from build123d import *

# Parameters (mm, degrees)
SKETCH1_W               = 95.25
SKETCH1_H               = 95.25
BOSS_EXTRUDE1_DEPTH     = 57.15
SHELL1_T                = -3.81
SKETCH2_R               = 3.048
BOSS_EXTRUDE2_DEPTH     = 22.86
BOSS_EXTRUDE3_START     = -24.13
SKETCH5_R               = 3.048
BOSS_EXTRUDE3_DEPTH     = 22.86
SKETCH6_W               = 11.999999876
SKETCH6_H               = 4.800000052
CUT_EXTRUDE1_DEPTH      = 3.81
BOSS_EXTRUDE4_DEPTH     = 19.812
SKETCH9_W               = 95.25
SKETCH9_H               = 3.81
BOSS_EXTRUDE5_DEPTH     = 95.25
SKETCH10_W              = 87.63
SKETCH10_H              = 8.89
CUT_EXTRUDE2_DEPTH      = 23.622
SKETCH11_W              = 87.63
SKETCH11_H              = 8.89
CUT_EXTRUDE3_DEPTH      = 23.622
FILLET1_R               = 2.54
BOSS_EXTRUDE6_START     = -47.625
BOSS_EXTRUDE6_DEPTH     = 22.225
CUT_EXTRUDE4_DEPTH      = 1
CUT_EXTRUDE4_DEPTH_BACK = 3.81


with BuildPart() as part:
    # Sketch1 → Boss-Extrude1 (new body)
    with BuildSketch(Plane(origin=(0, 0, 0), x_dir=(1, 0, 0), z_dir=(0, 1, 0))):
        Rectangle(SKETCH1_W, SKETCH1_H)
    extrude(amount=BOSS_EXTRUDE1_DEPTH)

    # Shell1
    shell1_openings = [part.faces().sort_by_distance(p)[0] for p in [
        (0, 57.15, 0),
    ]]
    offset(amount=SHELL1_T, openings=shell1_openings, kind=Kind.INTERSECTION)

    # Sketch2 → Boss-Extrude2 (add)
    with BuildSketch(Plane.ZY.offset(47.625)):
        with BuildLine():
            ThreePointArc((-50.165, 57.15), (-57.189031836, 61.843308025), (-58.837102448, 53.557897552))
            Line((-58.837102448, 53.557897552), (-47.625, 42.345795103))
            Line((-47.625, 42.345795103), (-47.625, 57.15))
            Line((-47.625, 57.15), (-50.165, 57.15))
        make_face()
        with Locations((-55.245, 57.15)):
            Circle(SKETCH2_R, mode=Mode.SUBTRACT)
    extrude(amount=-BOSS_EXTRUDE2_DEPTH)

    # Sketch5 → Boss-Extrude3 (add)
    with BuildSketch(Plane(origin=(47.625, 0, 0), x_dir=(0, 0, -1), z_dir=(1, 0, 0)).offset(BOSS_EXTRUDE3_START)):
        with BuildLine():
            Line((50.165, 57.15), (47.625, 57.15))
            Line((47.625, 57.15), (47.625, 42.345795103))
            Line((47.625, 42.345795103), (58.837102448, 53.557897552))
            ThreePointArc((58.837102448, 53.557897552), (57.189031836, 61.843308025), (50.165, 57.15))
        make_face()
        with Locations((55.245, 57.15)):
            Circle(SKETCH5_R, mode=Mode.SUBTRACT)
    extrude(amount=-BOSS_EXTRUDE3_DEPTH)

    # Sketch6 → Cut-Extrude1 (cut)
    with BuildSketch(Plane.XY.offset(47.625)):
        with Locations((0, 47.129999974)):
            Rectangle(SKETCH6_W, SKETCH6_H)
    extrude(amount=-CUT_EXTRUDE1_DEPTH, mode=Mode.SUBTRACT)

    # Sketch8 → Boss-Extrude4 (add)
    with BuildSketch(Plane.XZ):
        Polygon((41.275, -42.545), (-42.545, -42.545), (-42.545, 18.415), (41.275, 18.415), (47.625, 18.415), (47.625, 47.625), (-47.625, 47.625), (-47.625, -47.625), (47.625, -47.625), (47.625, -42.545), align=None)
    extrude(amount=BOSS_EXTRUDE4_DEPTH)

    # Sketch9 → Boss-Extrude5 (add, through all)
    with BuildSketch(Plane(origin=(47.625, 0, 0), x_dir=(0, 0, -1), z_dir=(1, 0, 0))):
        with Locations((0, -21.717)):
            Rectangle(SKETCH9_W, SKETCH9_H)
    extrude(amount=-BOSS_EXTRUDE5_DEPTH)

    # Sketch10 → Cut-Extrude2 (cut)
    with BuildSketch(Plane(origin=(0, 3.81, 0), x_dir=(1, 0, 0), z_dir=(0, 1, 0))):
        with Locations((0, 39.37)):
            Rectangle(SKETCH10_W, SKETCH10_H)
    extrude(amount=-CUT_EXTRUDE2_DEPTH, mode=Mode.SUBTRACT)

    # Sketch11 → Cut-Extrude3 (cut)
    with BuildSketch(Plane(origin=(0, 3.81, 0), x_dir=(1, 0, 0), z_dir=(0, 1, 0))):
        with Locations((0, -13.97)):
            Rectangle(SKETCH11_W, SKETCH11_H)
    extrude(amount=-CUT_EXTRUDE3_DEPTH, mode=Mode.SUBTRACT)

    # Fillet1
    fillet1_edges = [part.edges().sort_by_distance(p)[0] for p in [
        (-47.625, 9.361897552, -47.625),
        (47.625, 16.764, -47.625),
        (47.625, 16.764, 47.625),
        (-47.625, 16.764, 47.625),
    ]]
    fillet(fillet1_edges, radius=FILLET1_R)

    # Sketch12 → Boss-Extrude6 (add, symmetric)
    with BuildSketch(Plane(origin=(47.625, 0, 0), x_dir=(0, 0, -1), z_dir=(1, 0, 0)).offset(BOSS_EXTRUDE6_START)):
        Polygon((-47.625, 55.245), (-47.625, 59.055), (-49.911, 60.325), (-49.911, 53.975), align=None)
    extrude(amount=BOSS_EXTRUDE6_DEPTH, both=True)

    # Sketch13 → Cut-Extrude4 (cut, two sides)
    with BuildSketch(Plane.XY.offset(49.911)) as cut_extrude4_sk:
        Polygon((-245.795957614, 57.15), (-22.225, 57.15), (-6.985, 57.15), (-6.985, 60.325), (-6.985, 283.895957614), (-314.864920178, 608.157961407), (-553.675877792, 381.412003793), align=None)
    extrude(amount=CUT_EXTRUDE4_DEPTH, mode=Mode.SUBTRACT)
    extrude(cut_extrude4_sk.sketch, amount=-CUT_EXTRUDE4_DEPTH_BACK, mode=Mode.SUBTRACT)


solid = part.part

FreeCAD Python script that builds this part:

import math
import FreeCAD as App
import Part
import Sketcher
from FreeCAD import Vector
Q = App.Units.Quantity


def edges_at(feature, points):
    """Names of the edges that pass closest to the given points."""
    edges = feature.Shape.Edges
    near = lambda p: min(range(len(edges)), key=lambda i: edges[i].distToShape(Part.Vertex(*p))[0])
    return sorted({f"Edge{near(p) + 1}" for p in points})


def faces_at(feature, points):
    """Names of the faces that lie closest to the given points."""
    faces = feature.Shape.Faces
    near = lambda p: min(range(len(faces)), key=lambda i: faces[i].distToShape(Part.Vertex(*p))[0])
    return sorted({f"Face{near(p) + 1}" for p in points})

doc = App.newDocument("Part")
params = doc.addObject("Spreadsheet::Sheet", "Params")
for row, (alias, value) in enumerate([
    ("sketch1_width", "3.75 in"),
    ("pad1_length", "2.25 in"),
    ("thickness_wall", "0.15 in"),
    ("sketch2_radius", "0.2 in"),
    ("sketch2_diameter", "0.24 in"),
    ("sketch2_height", "0.1 in"),
    ("pad2_length", "0.9 in"),
    ("sketch3_radius", "0.2 in"),
    ("sketch3_diameter", "0.24 in"),
    ("sketch3_height", "0.1 in"),
    ("pad3_length", "0.9 in"),
    ("pocket1_length", "0.15 in"),
    ("sketch5_height", "2.4 in"),
    ("sketch5_height2", "0.2 in"),
    ("sketch5_width", "3.55 in"),
    ("sketch5_width2", "3.75 in"),
    ("pad4_length", "0.78 in"),
    ("sketch6_width", "0.15 in"),
    ("sketch6_height", "3.75 in"),
    ("pad5_length", "3.75 in"),
    ("sketch7_width", "3.45 in"),
    ("sketch7_height", "0.35 in"),
    ("pocket2_length", "0.93 in"),
    ("sketch8_width", "3.45 in"),
    ("sketch8_height", "0.35 in"),
    ("pocket3_length", "0.93 in"),
    ("fillet_radius", "0.1 in"),
    ("sketch9_width", "0.15 in"),
    ("sketch9_width2", "0.25 in"),
    ("pad6_length", "1.75 in"),
    ("pocket4_length", "1 mm"),
    ("pocket4_length2", "0.15 in"),
], start=1):
    params.set(f"A{row}", alias)
    params.set(f"B{row}", "=" + value)
    params.setAlias(f"B{row}", alias)

body = doc.addObject("PartDesign::Body", "Body")

sketch1 = doc.addObject("Sketcher::SketchObject", "Sketch")
body.addObject(sketch1)
sketch1.AttachmentSupport = (doc.XZ_Plane, [""])
sketch1.MapMode = "FlatFace"
sketch1.addGeometry(Part.LineSegment(Vector(-48, -48, 0), Vector(-48, 48, 0)), False)
sketch1.addGeometry(Part.LineSegment(Vector(-48, 48, 0), Vector(48, 48, 0)), False)
sketch1.addGeometry(Part.LineSegment(Vector(48, 48, 0), Vector(48, -48, 0)), False)
sketch1.addGeometry(Part.LineSegment(Vector(48, -48, 0), Vector(-48, -48, 0)), False)
sketch1.addConstraint(Sketcher.Constraint("Coincident", 0, 2, 1, 1))
sketch1.addConstraint(Sketcher.Constraint("Coincident", 1, 2, 2, 1))
sketch1.addConstraint(Sketcher.Constraint("Coincident", 2, 2, 3, 1))
sketch1.addConstraint(Sketcher.Constraint("Coincident", 3, 2, 0, 1))
sketch1.addConstraint(Sketcher.Constraint("Vertical", 0))
sketch1.addConstraint(Sketcher.Constraint("Horizontal", 1))
sketch1.addConstraint(Sketcher.Constraint("Vertical", 2))
sketch1.addConstraint(Sketcher.Constraint("Horizontal", 3))
sketch1.addConstraint(Sketcher.Constraint("Symmetric", 0, 2, 2, 2, -1, 1))
sketch1.addConstraint(Sketcher.Constraint("Equal", 3, 0))
sketch1.addConstraint(Sketcher.Constraint("DistanceX", 1, 1, 1, 2, Q("3.75 in")))
sketch1.setExpression("Constraints[10]", "Params.sketch1_width")
pad1 = doc.addObject("PartDesign::Pad", "Pad")
body.addObject(pad1)
pad1.Profile = sketch1
pad1.setExpression("Length", "Params.pad1_length")
pad1.Reversed = True
doc.recompute()

thickness = doc.addObject("PartDesign::Thickness", "Thickness")
body.addObject(thickness)
thickness.Base = (pad1, faces_at(pad1, [(0, 57.15, 0)]))
thickness.setExpression("Value", "Params.thickness_wall")
thickness.Reversed = True
thickness.Join = "Intersection"

sketch2 = doc.addObject("Sketcher::SketchObject", "Sketch001")
body.addObject(sketch2)
sketch2.AttachmentSupport = (doc.YZ_Plane, [""])
sketch2.MapMode = "FlatFace"
sketch2.AttachmentOffset = App.Placement(Vector(0, 0, -1.875 * 25.4), App.Rotation())
sketch2.addGeometry(Part.ArcOfCircle(Part.Circle(Vector(57.1, -55.2, 0), Vector(0, 0, 1), 5.1), math.radians(-135), math.radians(90)), False)
sketch2.addGeometry(Part.LineSegment(Vector(53.6, -58.8, 0), Vector(42.3, -47.6, 0)), False)
sketch2.addGeometry(Part.LineSegment(Vector(42.3, -47.6, 0), Vector(57.1, -47.6, 0)), False)
sketch2.addGeometry(Part.LineSegment(Vector(57.1, -47.6, 0), Vector(57.1, -50.2, 0)), False)
sketch2.addGeometry(Part.Circle(Vector(57.1, -55.2, 0), Vector(0, 0, 1), 3), False)
sketch2.addConstraint(Sketcher.Constraint("Tangent", 0, 1, 1, 1))
sketch2.addConstraint(Sketcher.Constraint("Coincident", 1, 2, 2, 1))
sketch2.addConstraint(Sketcher.Constraint("Coincident", 2, 2, 3, 1))
sketch2.addConstraint(Sketcher.Constraint("Coincident", 3, 2, 0, 2))
sketch2.addConstraint(Sketcher.Constraint("Horizontal", 2))
sketch2.addConstraint(Sketcher.Constraint("Vertical", 3))
sketch2.addConstraint(Sketcher.Constraint("Coincident", 4, 3, 0, 3))
sketch2.addConstraint(Sketcher.Constraint("Vertical", 4, 3, 2, 2))
sketch2.addConstraint(Sketcher.Constraint("Radius", 0, Q("0.2 in")))
sketch2.addConstraint(Sketcher.Constraint("Diameter", 4, Q("0.24 in")))
sketch2.addConstraint(Sketcher.Constraint("DistanceY", 3, 2, 3, 1, Q("0.1 in")))
sketch2.addConstraint(Sketcher.Constraint("Angle", 1, Q("135 deg")))
sketch2.addConstraint(Sketcher.Constraint("DistanceX", -1, 1, 0, 3, Q("2.25 in")))
sketch2.addConstraint(Sketcher.Constraint("DistanceY", 0, 3, -1, 1, Q("2.175 in")))
sketch2.setExpression("Constraints[8]", "Params.sketch2_radius")
sketch2.setExpression("Constraints[9]", "Params.sketch2_diameter")
sketch2.setExpression("Constraints[10]", "Params.sketch2_height")
pad2 = doc.addObject("PartDesign::Pad", "Pad001")
body.addObject(pad2)
pad2.Profile = sketch2
pad2.setExpression("Length", "Params.pad2_length")

sketch3 = doc.addObject("Sketcher::SketchObject", "Sketch002")
body.addObject(sketch3)
sketch3.AttachmentSupport = (doc.YZ_Plane, [""])
sketch3.MapMode = "FlatFace"
sketch3.AttachmentOffset = App.Placement(Vector(0, 0, 0.925 * 25.4), App.Rotation())
sketch3.addGeometry(Part.LineSegment(Vector(57.1, -50.2, 0), Vector(57.1, -47.6, 0)), False)
sketch3.addGeometry(Part.LineSegment(Vector(57.1, -47.6, 0), Vector(42.3, -47.6, 0)), False)
sketch3.addGeometry(Part.LineSegment(Vector(42.3, -47.6, 0), Vector(53.6, -58.8, 0)), False)
sketch3.addGeometry(Part.ArcOfCircle(Part.Circle(Vector(57.1, -55.2, 0), Vector(0, 0, 1), 5.1), math.radians(-135), math.radians(90)), False)
sketch3.addGeometry(Part.Circle(Vector(57.1, -55.2, 0), Vector(0, 0, 1), 3), False)
sketch3.addConstraint(Sketcher.Constraint("Coincident", 0, 2, 1, 1))
sketch3.addConstraint(Sketcher.Constraint("Coincident", 1, 2, 2, 1))
sketch3.addConstraint(Sketcher.Constraint("Tangent", 2, 2, 3, 1))
sketch3.addConstraint(Sketcher.Constraint("Coincident", 3, 2, 0, 1))
sketch3.addConstraint(Sketcher.Constraint("Vertical", 0))
sketch3.addConstraint(Sketcher.Constraint("Horizontal", 1))
sketch3.addConstraint(Sketcher.Constraint("Coincident", 4, 3, 3, 3))
sketch3.addConstraint(Sketcher.Constraint("Vertical", 4, 3, 0, 2))
sketch3.addConstraint(Sketcher.Constraint("Radius", 3, Q("0.2 in")))
sketch3.addConstraint(Sketcher.Constraint("Diameter", 4, Q("0.24 in")))
sketch3.addConstraint(Sketcher.Constraint("DistanceY", 0, 1, 0, 2, Q("0.1 in")))
sketch3.addConstraint(Sketcher.Constraint("Angle", 2, Q("-45 deg")))
sketch3.addConstraint(Sketcher.Constraint("DistanceX", -1, 1, 3, 3, Q("2.25 in")))
sketch3.addConstraint(Sketcher.Constraint("DistanceY", 3, 3, -1, 1, Q("2.175 in")))
sketch3.setExpression("Constraints[8]", "Params.sketch3_radius")
sketch3.setExpression("Constraints[9]", "Params.sketch3_diameter")
sketch3.setExpression("Constraints[10]", "Params.sketch3_height")
pad3 = doc.addObject("PartDesign::Pad", "Pad002")
body.addObject(pad3)
pad3.Profile = sketch3
pad3.setExpression("Length", "Params.pad3_length")
pad3.Reversed = True

sketch4 = doc.addObject("Sketcher::SketchObject", "Sketch003")
body.addObject(sketch4)
sketch4.AttachmentSupport = (doc.XY_Plane, [""])
sketch4.MapMode = "FlatFace"
sketch4.AttachmentOffset = App.Placement(Vector(0, 0, 1.875 * 25.4), App.Rotation())
sketch4.addGeometry(Part.LineSegment(Vector(-6, 49.5, 0), Vector(-6, 44.7, 0)), False)
sketch4.addGeometry(Part.LineSegment(Vector(-6, 44.7, 0), Vector(6, 44.7, 0)), False)
sketch4.addGeometry(Part.LineSegment(Vector(6, 44.7, 0), Vector(6, 49.5, 0)), False)
sketch4.addGeometry(Part.LineSegment(Vector(6, 49.5, 0), Vector(-6, 49.5, 0)), False)
sketch4.addConstraint(Sketcher.Constraint("Coincident", 0, 2, 1, 1))
sketch4.addConstraint(Sketcher.Constraint("Coincident", 1, 2, 2, 1))
sketch4.addConstraint(Sketcher.Constraint("Coincident", 2, 2, 3, 1))
sketch4.addConstraint(Sketcher.Constraint("Coincident", 3, 2, 0, 1))
sketch4.addConstraint(Sketcher.Constraint("Vertical", 0))
sketch4.addConstraint(Sketcher.Constraint("Horizontal", 1))
sketch4.addConstraint(Sketcher.Constraint("Vertical", 2))
sketch4.addConstraint(Sketcher.Constraint("Horizontal", 3))
sketch4.addConstraint(Sketcher.Constraint("DistanceY", -1, 1, 2, 2, Q("1.95 in")))
sketch4.addConstraint(Sketcher.Constraint("DistanceX", 1, 1, 1, 2, Q("12 mm")))
sketch4.addConstraint(Sketcher.Constraint("DistanceY", 0, 2, 0, 1, Q("4.8 mm")))
sketch4.addConstraint(Sketcher.Constraint("DistanceX", 0, 2, -1, 1, Q("6 mm")))
pocket1 = doc.addObject("PartDesign::Pocket", "Pocket")
body.addObject(pocket1)
pocket1.Profile = sketch4
pocket1.setExpression("Length", "Params.pocket1_length")

sketch5 = doc.addObject("Sketcher::SketchObject", "Sketch004")
body.addObject(sketch5)
sketch5.AttachmentSupport = (doc.XZ_Plane, [""])
sketch5.MapMode = "FlatFace"
sketch5.addGeometry(Part.LineSegment(Vector(-43, -43, 0), Vector(-43, 18, 0)), False)
sketch5.addGeometry(Part.LineSegment(Vector(-43, 18, 0), Vector(48, 18, 0)), False)
sketch5.addGeometry(Part.LineSegment(Vector(48, 18, 0), Vector(48, 48, 0)), False)
sketch5.addGeometry(Part.LineSegment(Vector(48, 48, 0), Vector(-48, 48, 0)), False)
sketch5.addGeometry(Part.LineSegment(Vector(-48, 48, 0), Vector(-48, -48, 0)), False)
sketch5.addGeometry(Part.LineSegment(Vector(-48, -48, 0), Vector(48, -48, 0)), False)
sketch5.addGeometry(Part.LineSegment(Vector(48, -48, 0), Vector(48, -43, 0)), False)
sketch5.addGeometry(Part.LineSegment(Vector(48, -43, 0), Vector(-43, -43, 0)), False)
sketch5.addConstraint(Sketcher.Constraint("Coincident", 0, 2, 1, 1))
sketch5.addConstraint(Sketcher.Constraint("Coincident", 1, 2, 2, 1))
sketch5.addConstraint(Sketcher.Constraint("Coincident", 2, 2, 3, 1))
sketch5.addConstraint(Sketcher.Constraint("Coincident", 3, 2, 4, 1))
sketch5.addConstraint(Sketcher.Constraint("Coincident", 4, 2, 5, 1))
sketch5.addConstraint(Sketcher.Constraint("Coincident", 5, 2, 6, 1))
sketch5.addConstraint(Sketcher.Constraint("Coincident", 6, 2, 7, 1))
sketch5.addConstraint(Sketcher.Constraint("Coincident", 7, 2, 0, 1))
sketch5.addConstraint(Sketcher.Constraint("Vertical", 0))
sketch5.addConstraint(Sketcher.Constraint("Horizontal", 1))
sketch5.addConstraint(Sketcher.Constraint("Vertical", 2))
sketch5.addConstraint(Sketcher.Constraint("Horizontal", 3))
sketch5.addConstraint(Sketcher.Constraint("Vertical", 4))
sketch5.addConstraint(Sketcher.Constraint("Horizontal", 5))
sketch5.addConstraint(Sketcher.Constraint("Vertical", 6))
sketch5.addConstraint(Sketcher.Constraint("Horizontal", 7))
sketch5.addConstraint(Sketcher.Constraint("Symmetric", 2, 2, 4, 2, -1, 1))
sketch5.addConstraint(Sketcher.Constraint("Vertical", 2, 2, 5, 2))
sketch5.addConstraint(Sketcher.Constraint("Equal", 5, 4))
sketch5.addConstraint(Sketcher.Constraint("DistanceY", 0, 1, 0, 2, Q("2.4 in")))
sketch5.addConstraint(Sketcher.Constraint("DistanceY", 6, 1, 6, 2, Q("0.2 in")))
sketch5.addConstraint(Sketcher.Constraint("DistanceX", 1, 1, 1, 2, Q("3.55 in")))
sketch5.addConstraint(Sketcher.Constraint("DistanceX", 3, 2, 3, 1, Q("3.75 in")))
sketch5.setExpression("Constraints[19]", "Params.sketch5_height")
sketch5.setExpression("Constraints[20]", "Params.sketch5_height2")
sketch5.setExpression("Constraints[21]", "Params.sketch5_width")
sketch5.setExpression("Constraints[22]", "Params.sketch5_width2")
pad4 = doc.addObject("PartDesign::Pad", "Pad003")
body.addObject(pad4)
pad4.Profile = sketch5
pad4.setExpression("Length", "Params.pad4_length")

sketch6 = doc.addObject("Sketcher::SketchObject", "Sketch005")
body.addObject(sketch6)
sketch6.AttachmentSupport = (doc.YZ_Plane, [""])
sketch6.MapMode = "FlatFace"
sketch6.AttachmentOffset = App.Placement(Vector(0, 0, 1.875 * 25.4), App.Rotation())
sketch6.addGeometry(Part.LineSegment(Vector(-19.8, 47.6, 0), Vector(-23.6, 47.6, 0)), False)
sketch6.addGeometry(Part.LineSegment(Vector(-23.6, 47.6, 0), Vector(-23.6, -47.6, 0)), False)
sketch6.addGeometry(Part.LineSegment(Vector(-23.6, -47.6, 0), Vector(-19.8, -47.6, 0)), False)
sketch6.addGeometry(Part.LineSegment(Vector(-19.8, -47.6, 0), Vector(-19.8, 47.6, 0)), False)
sketch6.addConstraint(Sketcher.Constraint("Coincident", 0, 2, 1, 1))
sketch6.addConstraint(Sketcher.Constraint("Coincident", 1, 2, 2, 1))
sketch6.addConstraint(Sketcher.Constraint("Coincident", 2, 2, 3, 1))
sketch6.addConstraint(Sketcher.Constraint("Coincident", 3, 2, 0, 1))
sketch6.addConstraint(Sketcher.Constraint("Horizontal", 0))
sketch6.addConstraint(Sketcher.Constraint("Vertical", 1))
sketch6.addConstraint(Sketcher.Constraint("Horizontal", 2))
sketch6.addConstraint(Sketcher.Constraint("Vertical", 3))
sketch6.addConstraint(Sketcher.Constraint("DistanceX", 0, 2, 0, 1, Q("0.15 in")))
sketch6.addConstraint(Sketcher.Constraint("DistanceY", 1, 2, 1, 1, Q("3.75 in")))
sketch6.addConstraint(Sketcher.Constraint("DistanceX", 0, 2, -1, 1, Q("0.93 in")))
sketch6.addConstraint(Sketcher.Constraint("DistanceY", -1, 1, 0, 2, Q("1.875 in")))
sketch6.setExpression("Constraints[8]", "Params.sketch6_width")
sketch6.setExpression("Constraints[9]", "Params.sketch6_height")
pad5 = doc.addObject("PartDesign::Pad", "Pad004")
body.addObject(pad5)
pad5.Profile = sketch6
pad5.setExpression("Length", "Params.pad5_length")
pad5.Reversed = True

sketch7 = doc.addObject("Sketcher::SketchObject", "Sketch006")
body.addObject(sketch7)
sketch7.AttachmentSupport = (doc.XZ_Plane, [""])
sketch7.MapMode = "FlatFace"
sketch7.AttachmentOffset = App.Placement(Vector(0, 0, -0.15 * 25.4), App.Rotation())
sketch7.addGeometry(Part.LineSegment(Vector(-44, -44, 0), Vector(-44, -35, 0)), False)
sketch7.addGeometry(Part.LineSegment(Vector(-44, -35, 0), Vector(44, -35, 0)), False)
sketch7.addGeometry(Part.LineSegment(Vector(44, -35, 0), Vector(44, -44, 0)), False)
sketch7.addGeometry(Part.LineSegment(Vector(44, -44, 0), Vector(-44, -44, 0)), False)
sketch7.addConstraint(Sketcher.Constraint("Coincident", 0, 2, 1, 1))
sketch7.addConstraint(Sketcher.Constraint("Coincident", 1, 2, 2, 1))
sketch7.addConstraint(Sketcher.Constraint("Coincident", 2, 2, 3, 1))
sketch7.addConstraint(Sketcher.Constraint("Coincident", 3, 2, 0, 1))
sketch7.addConstraint(Sketcher.Constraint("Vertical", 0))
sketch7.addConstraint(Sketcher.Constraint("Horizontal", 1))
sketch7.addConstraint(Sketcher.Constraint("Vertical", 2))
sketch7.addConstraint(Sketcher.Constraint("Horizontal", 3))
sketch7.addConstraint(Sketcher.Constraint("DistanceX", 1, 1, 1, 2, Q("3.45 in")))
sketch7.addConstraint(Sketcher.Constraint("DistanceY", 0, 1, 0, 2, Q("0.35 in")))
sketch7.addConstraint(Sketcher.Constraint("DistanceX", 0, 2, -1, 1, Q("1.725 in")))
sketch7.addConstraint(Sketcher.Constraint("DistanceY", 0, 2, -1, 1, Q("1.375 in")))
sketch7.setExpression("Constraints[8]", "Params.sketch7_width")
sketch7.setExpression("Constraints[9]", "Params.sketch7_height")
pocket2 = doc.addObject("PartDesign::Pocket", "Pocket001")
body.addObject(pocket2)
pocket2.Profile = sketch7
pocket2.setExpression("Length", "Params.pocket2_length")
pocket2.Reversed = True

sketch8 = doc.addObject("Sketcher::SketchObject", "Sketch007")
body.addObject(sketch8)
sketch8.AttachmentSupport = (doc.XZ_Plane, [""])
sketch8.MapMode = "FlatFace"
sketch8.AttachmentOffset = App.Placement(Vector(0, 0, -0.15 * 25.4), App.Rotation())
sketch8.addGeometry(Part.LineSegment(Vector(-44, 10, 0), Vector(-44, 18, 0)), False)
sketch8.addGeometry(Part.LineSegment(Vector(-44, 18, 0), Vector(44, 18, 0)), False)
sketch8.addGeometry(Part.LineSegment(Vector(44, 18, 0), Vector(44, 10, 0)), False)
sketch8.addGeometry(Part.LineSegment(Vector(44, 10, 0), Vector(-44, 10, 0)), False)
sketch8.addConstraint(Sketcher.Constraint("Coincident", 0, 2, 1, 1))
sketch8.addConstraint(Sketcher.Constraint("Coincident", 1, 2, 2, 1))
sketch8.addConstraint(Sketcher.Constraint("Coincident", 2, 2, 3, 1))
sketch8.addConstraint(Sketcher.Constraint("Coincident", 3, 2, 0, 1))
sketch8.addConstraint(Sketcher.Constraint("Vertical", 0))
sketch8.addConstraint(Sketcher.Constraint("Horizontal", 1))
sketch8.addConstraint(Sketcher.Constraint("Vertical", 2))
sketch8.addConstraint(Sketcher.Constraint("Horizontal", 3))
sketch8.addConstraint(Sketcher.Constraint("DistanceX", 1, 1, 1, 2, Q("3.45 in")))
sketch8.addConstraint(Sketcher.Constraint("DistanceY", 0, 1, 0, 2, Q("0.35 in")))
sketch8.addConstraint(Sketcher.Constraint("DistanceX", 0, 2, -1, 1, Q("1.725 in")))
sketch8.addConstraint(Sketcher.Constraint("DistanceY", -1, 1, 0, 2, Q("0.725 in")))
sketch8.setExpression("Constraints[8]", "Params.sketch8_width")
sketch8.setExpression("Constraints[9]", "Params.sketch8_height")
pocket3 = doc.addObject("PartDesign::Pocket", "Pocket002")
body.addObject(pocket3)
pocket3.Profile = sketch8
pocket3.setExpression("Length", "Params.pocket3_length")
pocket3.Reversed = True
doc.recompute()

fillet = doc.addObject("PartDesign::Fillet", "Fillet")
body.addObject(fillet)
fillet.Base = (pocket3, edges_at(pocket3, [
    (-47.625, 9.362, -47.625),
    (47.625, 16.764, -47.625),
    (47.625, 16.764, 47.625),
    (-47.625, 16.764, 47.625),
]))
fillet.setExpression("Radius", "Params.fillet_radius")

sketch9 = doc.addObject("Sketcher::SketchObject", "Sketch008")
body.addObject(sketch9)
sketch9.AttachmentSupport = (doc.YZ_Plane, [""])
sketch9.MapMode = "FlatFace"
sketch9.addGeometry(Part.LineSegment(Vector(55.2, 47.6, 0), Vector(59.1, 47.6, 0)), False)
sketch9.addGeometry(Part.LineSegment(Vector(59.1, 47.6, 0), Vector(60.3, 49.9, 0)), False)
sketch9.addGeometry(Part.LineSegment(Vector(60.3, 49.9, 0), Vector(54, 49.9, 0)), False)
sketch9.addGeometry(Part.LineSegment(Vector(54, 49.9, 0), Vector(55.2, 47.6, 0)), False)
sketch9.addConstraint(Sketcher.Constraint("Coincident", 0, 2, 1, 1))
sketch9.addConstraint(Sketcher.Constraint("Coincident", 1, 2, 2, 1))
sketch9.addConstraint(Sketcher.Constraint("Coincident", 2, 2, 3, 1))
sketch9.addConstraint(Sketcher.Constraint("Coincident", 3, 2, 0, 1))
sketch9.addConstraint(Sketcher.Constraint("Horizontal", 0))
sketch9.addConstraint(Sketcher.Constraint("Horizontal", 2))
sketch9.addConstraint(Sketcher.Constraint("Equal", 1, 3))
sketch9.addConstraint(Sketcher.Constraint("DistanceX", 0, 1, 0, 2, Q("0.15 in")))
sketch9.addConstraint(Sketcher.Constraint("DistanceX", 2, 2, 2, 1, Q("0.25 in")))
sketch9.addConstraint(Sketcher.Constraint("DistanceY", 0, 2, 1, 2, Q("0.09 in")))
sketch9.addConstraint(Sketcher.Constraint("DistanceX", -1, 1, 0, 2, Q("2.325 in")))
sketch9.addConstraint(Sketcher.Constraint("DistanceY", -1, 1, 0, 2, Q("1.875 in")))
sketch9.setExpression("Constraints[7]", "Params.sketch9_width")
sketch9.setExpression("Constraints[8]", "Params.sketch9_width2")
pad6 = doc.addObject("PartDesign::Pad", "Pad005")
body.addObject(pad6)
pad6.Profile = sketch9
pad6.setExpression("Length", "Params.pad6_length")
pad6.Midplane = True

sketch10 = doc.addObject("Sketcher::SketchObject", "Sketch009")
body.addObject(sketch10)
sketch10.AttachmentSupport = (doc.XY_Plane, [""])
sketch10.MapMode = "FlatFace"
sketch10.AttachmentOffset = App.Placement(Vector(0, 0, 1.965 * 25.4), App.Rotation())
sketch10.addGeometry(Part.LineSegment(Vector(-246, 57, 0), Vector(-7, 57, 0)), False)
sketch10.addGeometry(Part.LineSegment(Vector(-7, 57, 0), Vector(-7, 284, 0)), False)
sketch10.addGeometry(Part.LineSegment(Vector(-7, 284, 0), Vector(-315, 608, 0)), False)
sketch10.addGeometry(Part.LineSegment(Vector(-315, 608, 0), Vector(-554, 381, 0)), False)
sketch10.addGeometry(Part.LineSegment(Vector(-554, 381, 0), Vector(-246, 57, 0)), False)
sketch10.addConstraint(Sketcher.Constraint("Coincident", 0, 2, 1, 1))
sketch10.addConstraint(Sketcher.Constraint("Coincident", 1, 2, 2, 1))
sketch10.addConstraint(Sketcher.Constraint("Coincident", 2, 2, 3, 1))
sketch10.addConstraint(Sketcher.Constraint("Coincident", 3, 2, 4, 1))
sketch10.addConstraint(Sketcher.Constraint("Coincident", 4, 2, 0, 1))
sketch10.addConstraint(Sketcher.Constraint("Horizontal", 0))
sketch10.addConstraint(Sketcher.Constraint("Vertical", 1))
sketch10.addConstraint(Sketcher.Constraint("Perpendicular", 2, 3))
sketch10.addConstraint(Sketcher.Constraint("Perpendicular", 3, 4))
sketch10.addConstraint(Sketcher.Constraint("Equal", 2, 4))
sketch10.addConstraint(Sketcher.Constraint("DistanceY", -1, 1, 0, 2, Q("2.25 in")))
sketch10.addConstraint(Sketcher.Constraint("DistanceX", 0, 2, -1, 1, Q("0.275 in")))
sketch10.addConstraint(Sketcher.Constraint("DistanceX", 0, 1, 0, 2, Q("238.810958 mm")))
sketch10.addConstraint(Sketcher.Constraint("DistanceY", 1, 1, 1, 2, Q("226.745958 mm")))
sketch10.addConstraint(Sketcher.Constraint("DistanceX", 2, 2, -1, 1, Q("314.86492 mm")))
pocket4 = doc.addObject("PartDesign::Pocket", "Pocket003")
body.addObject(pocket4)
pocket4.Profile = sketch10
pocket4.Type = "TwoLengths"
pocket4.setExpression("Length", "Params.pocket4_length")
pocket4.setExpression("Length2", "Params.pocket4_length2")
pocket4.Reversed = True

doc.recompute()
